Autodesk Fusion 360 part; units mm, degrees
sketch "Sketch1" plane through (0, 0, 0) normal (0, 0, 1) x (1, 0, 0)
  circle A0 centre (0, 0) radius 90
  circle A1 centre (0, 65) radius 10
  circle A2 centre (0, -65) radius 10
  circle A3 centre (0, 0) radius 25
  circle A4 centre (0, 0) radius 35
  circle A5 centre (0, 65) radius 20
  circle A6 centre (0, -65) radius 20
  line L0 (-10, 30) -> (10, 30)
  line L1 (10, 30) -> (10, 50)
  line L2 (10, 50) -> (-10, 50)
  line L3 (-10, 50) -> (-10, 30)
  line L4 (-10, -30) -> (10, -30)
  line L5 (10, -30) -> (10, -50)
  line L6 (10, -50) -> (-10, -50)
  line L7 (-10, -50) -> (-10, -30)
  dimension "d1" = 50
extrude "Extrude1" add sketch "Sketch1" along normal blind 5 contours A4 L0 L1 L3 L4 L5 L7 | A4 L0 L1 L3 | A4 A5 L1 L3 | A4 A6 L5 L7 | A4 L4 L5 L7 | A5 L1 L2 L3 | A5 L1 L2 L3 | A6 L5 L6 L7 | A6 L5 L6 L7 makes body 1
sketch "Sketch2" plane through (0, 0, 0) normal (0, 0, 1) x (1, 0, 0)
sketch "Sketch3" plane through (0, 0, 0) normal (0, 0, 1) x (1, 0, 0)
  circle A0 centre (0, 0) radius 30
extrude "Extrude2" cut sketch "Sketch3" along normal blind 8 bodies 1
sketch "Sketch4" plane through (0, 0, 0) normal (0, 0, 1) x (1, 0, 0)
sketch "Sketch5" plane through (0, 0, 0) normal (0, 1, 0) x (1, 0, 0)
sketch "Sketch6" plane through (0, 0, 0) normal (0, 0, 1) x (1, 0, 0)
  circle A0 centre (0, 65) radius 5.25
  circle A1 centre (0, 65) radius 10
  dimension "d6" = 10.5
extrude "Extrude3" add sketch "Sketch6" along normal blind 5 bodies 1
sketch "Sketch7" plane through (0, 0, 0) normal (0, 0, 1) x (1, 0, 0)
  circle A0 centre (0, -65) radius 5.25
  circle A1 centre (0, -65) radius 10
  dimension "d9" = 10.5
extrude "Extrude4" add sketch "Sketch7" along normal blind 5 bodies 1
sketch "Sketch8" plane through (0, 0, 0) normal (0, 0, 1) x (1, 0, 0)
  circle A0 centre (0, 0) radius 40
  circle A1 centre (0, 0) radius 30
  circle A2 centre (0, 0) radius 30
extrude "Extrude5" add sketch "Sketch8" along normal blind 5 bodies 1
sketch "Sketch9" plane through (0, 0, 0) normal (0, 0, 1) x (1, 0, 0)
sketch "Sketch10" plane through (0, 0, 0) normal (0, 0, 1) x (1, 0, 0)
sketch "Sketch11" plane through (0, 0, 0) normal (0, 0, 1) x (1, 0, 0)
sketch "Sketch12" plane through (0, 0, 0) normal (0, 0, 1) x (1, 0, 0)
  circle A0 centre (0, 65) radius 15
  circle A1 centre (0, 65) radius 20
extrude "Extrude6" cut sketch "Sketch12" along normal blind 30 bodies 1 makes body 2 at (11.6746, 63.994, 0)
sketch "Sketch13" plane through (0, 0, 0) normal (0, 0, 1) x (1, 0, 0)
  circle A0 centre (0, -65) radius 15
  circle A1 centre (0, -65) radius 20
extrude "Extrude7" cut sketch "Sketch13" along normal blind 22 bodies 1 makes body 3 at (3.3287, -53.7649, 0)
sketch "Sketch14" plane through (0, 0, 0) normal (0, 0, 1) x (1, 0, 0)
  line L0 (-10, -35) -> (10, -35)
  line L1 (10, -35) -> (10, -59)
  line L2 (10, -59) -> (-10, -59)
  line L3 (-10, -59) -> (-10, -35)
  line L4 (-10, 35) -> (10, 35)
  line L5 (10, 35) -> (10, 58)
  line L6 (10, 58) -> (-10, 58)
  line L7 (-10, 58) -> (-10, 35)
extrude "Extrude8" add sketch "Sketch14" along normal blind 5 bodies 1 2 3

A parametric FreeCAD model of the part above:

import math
import FreeCAD as App
import Part
import Sketcher
from FreeCAD import Vector
Q = App.Units.Quantity


def add_polygon(sketch, points):
    """Adds a closed chain of lines whose ends are joined by coincident constraints."""
    first, n = sketch.GeometryCount, len(points)
    for a, b in zip(points, points[1:] + points[:1]):
        sketch.addGeometry(Part.LineSegment(App.Vector(*a, 0), App.Vector(*b, 0)), False)
    for i in range(n):
        sketch.addConstraint(Sketcher.Constraint("Coincident", first + i, 2, first + (i + 1) % n, 1))

doc = App.newDocument("Part")
body = doc.addObject("PartDesign::Body", "Body")
body.AllowCompound = True

# Sketch on XY plane
sketch1 = body.newObject("Sketcher::SketchObject", "Sketch")
sketch1.AttachmentSupport = (doc.getObject("XY_Plane"), [""])
sketch1.MapMode = "FlatFace"
sketch1.addGeometry([
    Part.ArcOfCircle(Part.Circle(Vector(0, 0, 0), Vector(0, 0, 1), 35), math.radians(-73.39845), math.radians(73.39845)),  # 0
    Part.LineSegment(Vector(10, 33.54102, 0), Vector(10, 47.679492, 0)),  # 1
    Part.ArcOfCircle(Part.Circle(Vector(0, 65, 0), Vector(0, 0, 1), 20), math.radians(-60), math.radians(240)),  # 2
    Part.LineSegment(Vector(-10, 47.679492, 0), Vector(-10, 33.54102, 0)),  # 3
    Part.ArcOfCircle(Part.Circle(Vector(0, 0, 0), Vector(0, 0, 1), 35), math.radians(106.60155), math.radians(253.39845)),  # 4
    Part.LineSegment(Vector(-10, -33.54102, 0), Vector(-10, -47.679492, 0)),  # 5
    Part.ArcOfCircle(Part.Circle(Vector(0, -65, 0), Vector(0, 0, 1), 20), math.radians(120), math.radians(420)),  # 6
    Part.LineSegment(Vector(10, -47.679492, 0), Vector(10, -33.54102, 0)),  # 7
    Part.Circle(Vector(0, 0, 0), Vector(0, 0, 1), 25),  # 8
    Part.Circle(Vector(0, -65, 0), Vector(0, 0, 1), 10),  # 9
    Part.Circle(Vector(0, 65, 0), Vector(0, 0, 1), 10),  # 10
], False)
sketch1.addConstraint([
    Sketcher.Constraint("Coincident", 0, 2, 1, 1),
    Sketcher.Constraint("Coincident", 1, 2, 2, 1),
    Sketcher.Constraint("Coincident", 2, 2, 3, 1),
    Sketcher.Constraint("Coincident", 3, 2, 4, 1),
    Sketcher.Constraint("Coincident", 4, 2, 5, 1),
    Sketcher.Constraint("Coincident", 5, 2, 6, 1),
    Sketcher.Constraint("Coincident", 6, 2, 7, 1),
    Sketcher.Constraint("Coincident", 7, 2, 0, 1),
    Sketcher.Constraint("Vertical", 1),
    Sketcher.Constraint("Vertical", 3),
    Sketcher.Constraint("Vertical", 5),
    Sketcher.Constraint("Vertical", 7),
    Sketcher.Constraint("Coincident", 0, 3, -1, 1),
    Sketcher.Constraint("Coincident", 4, 3, -1, 1),
    Sketcher.Constraint("Coincident", 8, 3, -1, 1),
    Sketcher.Constraint("Coincident", 9, 3, 6, 3),
    Sketcher.Constraint("Coincident", 10, 3, 2, 3),
    Sketcher.Constraint("Equal", 0, 4),
    Sketcher.Constraint("Equal", 2, 6),
    Sketcher.Constraint("Equal", 9, 10),
    Sketcher.Constraint("Symmetric", 2, 3, 6, 3, -1, 1),
    Sketcher.Constraint("Symmetric", 1, 2, 2, 2, -2),
    Sketcher.Constraint("Horizontal", 5, 2, 6, 2),
    Sketcher.Constraint("Vertical", 3, 2, 4, 2),
    Sketcher.Constraint("Diameter", 8, Q("50 mm")),
    Sketcher.Constraint("Diameter", 9, Q("20 mm")),
    Sketcher.Constraint("Radius", 0, Q("35 mm")),
    Sketcher.Constraint("Radius", 2, Q("20 mm")),
    Sketcher.Constraint("DistanceY", -1, 1, 2, 3, Q("65 mm")),
    Sketcher.Constraint("DistanceX", -1, 1, 0, 2, Q("10 mm")),
])
pad1 = body.newObject("PartDesign::Pad", "Pad")
pad1.Profile = sketch1
pad1.Length = 5

# Sketch on XY plane
sketch2 = body.newObject("Sketcher::SketchObject", "Sketch001")
sketch2.AttachmentSupport = (doc.getObject("XY_Plane"), [""])
sketch2.MapMode = "FlatFace"
sketch2.addGeometry(Part.Circle(Vector(0, 0, 0), Vector(0, 0, 1), 30), False)
sketch2.addConstraint([
    Sketcher.Constraint("Coincident", 0, 3, -1, 1),
    Sketcher.Constraint("Diameter", 0, Q("60 mm")),
])
pocket1 = body.newObject("PartDesign::Pocket", "Pocket")
pocket1.Profile = sketch2
pocket1.Length = 8
pocket1.Reversed = True

# Sketch on XY plane
sketch3 = body.newObject("Sketcher::SketchObject", "Sketch002")
sketch3.AttachmentSupport = (doc.getObject("XY_Plane"), [""])
sketch3.MapMode = "FlatFace"
sketch3.addGeometry([
    Part.Circle(Vector(0, 65, 0), Vector(0, 0, 1), 10),
    Part.Circle(Vector(0, 65, 0), Vector(0, 0, 1), 5.25),
], False)
sketch3.addConstraint([
    Sketcher.Constraint("Coincident", 1, 3, 0, 3),
    Sketcher.Constraint("PointOnObject", 0, 3, -2),
    Sketcher.Constraint("Diameter", 1, Q("10.5 mm")),
    Sketcher.Constraint("Diameter", 0, Q("20 mm")),
    Sketcher.Constraint("DistanceY", -1, 1, 0, 3, Q("65 mm")),
])
pad2 = body.newObject("PartDesign::Pad", "Pad001")
pad2.Profile = sketch3
pad2.Length = 5

# Sketch on XY plane
sketch4 = body.newObject("Sketcher::SketchObject", "Sketch003")
sketch4.AttachmentSupport = (doc.getObject("XY_Plane"), [""])
sketch4.MapMode = "FlatFace"
sketch4.addGeometry([
    Part.Circle(Vector(0, -65, 0), Vector(0, 0, 1), 10),
    Part.Circle(Vector(0, -65, 0), Vector(0, 0, 1), 5.25),
], False)
sketch4.addConstraint([
    Sketcher.Constraint("Coincident", 1, 3, 0, 3),
    Sketcher.Constraint("PointOnObject", 0, 3, -2),
    Sketcher.Constraint("Diameter", 1, Q("10.5 mm")),
    Sketcher.Constraint("Diameter", 0, Q("20 mm")),
    Sketcher.Constraint("DistanceY", 0, 3, -1, 1, Q("65 mm")),
])
pad3 = body.newObject("PartDesign::Pad", "Pad002")
pad3.Profile = sketch4
pad3.Length = 5

# Sketch on XY plane
sketch5 = body.newObject("Sketcher::SketchObject", "Sketch004")
sketch5.AttachmentSupport = (doc.getObject("XY_Plane"), [""])
sketch5.MapMode = "FlatFace"
sketch5.addGeometry([
    Part.Circle(Vector(0, 0, 0), Vector(0, 0, 1), 40),
    Part.Circle(Vector(0, 0, 0), Vector(0, 0, 1), 30),
], False)
sketch5.addConstraint([
    Sketcher.Constraint("Coincident", 0, 3, -1, 1),
    Sketcher.Constraint("Coincident", 1, 3, -1, 1),
    Sketcher.Constraint("Diameter", 0, Q("80 mm")),
    Sketcher.Constraint("Diameter", 1, Q("60 mm")),
])
pad4 = body.newObject("PartDesign::Pad", "Pad003")
pad4.Profile = sketch5
pad4.Length = 5

# Sketch on XY plane
sketch6 = body.newObject("Sketcher::SketchObject", "Sketch005")
sketch6.AttachmentSupport = (doc.getObject("XY_Plane"), [""])
sketch6.MapMode = "FlatFace"
sketch6.addGeometry([
    Part.Circle(Vector(0, 65, 0), Vector(0, 0, 1), 20),
    Part.Circle(Vector(0, 65, 0), Vector(0, 0, 1), 15),
], False)
sketch6.addConstraint([
    Sketcher.Constraint("Coincident", 1, 3, 0, 3),
    Sketcher.Constraint("PointOnObject", 0, 3, -2),
    Sketcher.Constraint("Diameter", 0, Q("40 mm")),
    Sketcher.Constraint("Diameter", 1, Q("30 mm")),
    Sketcher.Constraint("DistanceY", -1, 1, 0, 3, Q("65 mm")),
])
pocket2 = body.newObject("PartDesign::Pocket", "Pocket001")
pocket2.Profile = sketch6
pocket2.Length = 30
pocket2.Reversed = True

# Sketch on XY plane
sketch7 = body.newObject("Sketcher::SketchObject", "Sketch006")
sketch7.AttachmentSupport = (doc.getObject("XY_Plane"), [""])
sketch7.MapMode = "FlatFace"
sketch7.addGeometry([
    Part.Circle(Vector(0, -65, 0), Vector(0, 0, 1), 20),
    Part.Circle(Vector(0, -65, 0), Vector(0, 0, 1), 15),
], False)
sketch7.addConstraint([
    Sketcher.Constraint("Coincident", 1, 3, 0, 3),
    Sketcher.Constraint("PointOnObject", 0, 3, -2),
    Sketcher.Constraint("Diameter", 0, Q("40 mm")),
    Sketcher.Constraint("Diameter", 1, Q("30 mm")),
    Sketcher.Constraint("DistanceY", 0, 3, -1, 1, Q("65 mm")),
])
pocket3 = body.newObject("PartDesign::Pocket", "Pocket002")
pocket3.Profile = sketch7
pocket3.Length = 22
pocket3.Reversed = True

# Sketch on XY plane
sketch8 = body.newObject("Sketcher::SketchObject", "Sketch007")
sketch8.AttachmentSupport = (doc.getObject("XY_Plane"), [""])
sketch8.MapMode = "FlatFace"
add_polygon(sketch8, [(10, -35), (-10, -35), (-10, -59), (10, -59)])  # lines 0-3
add_polygon(sketch8, [(-10, 58), (-10, 35), (10, 35), (10, 58)])  # lines 4-7
sketch8.addConstraint([
    Sketcher.Constraint("Horizontal", 0),
    Sketcher.Constraint("Vertical", 1),
    Sketcher.Constraint("Horizontal", 2),
    Sketcher.Constraint("Vertical", 3),
    Sketcher.Constraint("Vertical", 4),
    Sketcher.Constraint("Horizontal", 5),
    Sketcher.Constraint("Vertical", 6),
    Sketcher.Constraint("Horizontal", 7),
    Sketcher.Constraint("Symmetric", 3, 2, 4, 2, -1, 1),
    Sketcher.Constraint("Vertical", 1, 2, 4, 2),
    Sketcher.Constraint("Vertical", 3, 2, 5, 2),
    Sketcher.Constraint("DistanceX", 0, 2, 0, 1, Q("20 mm")),
    Sketcher.Constraint("DistanceY", 1, 2, 1, 1, Q("24 mm")),
    Sketcher.Constraint("DistanceY", 4, 2, 4, 1, Q("23 mm")),
    Sketcher.Constraint("DistanceY", 0, 2, -1, 1, Q("35 mm")),
])
pad5 = body.newObject("PartDesign::Pad", "Pad004")
pad5.Profile = sketch8
pad5.Length = 5

doc.recompute()
